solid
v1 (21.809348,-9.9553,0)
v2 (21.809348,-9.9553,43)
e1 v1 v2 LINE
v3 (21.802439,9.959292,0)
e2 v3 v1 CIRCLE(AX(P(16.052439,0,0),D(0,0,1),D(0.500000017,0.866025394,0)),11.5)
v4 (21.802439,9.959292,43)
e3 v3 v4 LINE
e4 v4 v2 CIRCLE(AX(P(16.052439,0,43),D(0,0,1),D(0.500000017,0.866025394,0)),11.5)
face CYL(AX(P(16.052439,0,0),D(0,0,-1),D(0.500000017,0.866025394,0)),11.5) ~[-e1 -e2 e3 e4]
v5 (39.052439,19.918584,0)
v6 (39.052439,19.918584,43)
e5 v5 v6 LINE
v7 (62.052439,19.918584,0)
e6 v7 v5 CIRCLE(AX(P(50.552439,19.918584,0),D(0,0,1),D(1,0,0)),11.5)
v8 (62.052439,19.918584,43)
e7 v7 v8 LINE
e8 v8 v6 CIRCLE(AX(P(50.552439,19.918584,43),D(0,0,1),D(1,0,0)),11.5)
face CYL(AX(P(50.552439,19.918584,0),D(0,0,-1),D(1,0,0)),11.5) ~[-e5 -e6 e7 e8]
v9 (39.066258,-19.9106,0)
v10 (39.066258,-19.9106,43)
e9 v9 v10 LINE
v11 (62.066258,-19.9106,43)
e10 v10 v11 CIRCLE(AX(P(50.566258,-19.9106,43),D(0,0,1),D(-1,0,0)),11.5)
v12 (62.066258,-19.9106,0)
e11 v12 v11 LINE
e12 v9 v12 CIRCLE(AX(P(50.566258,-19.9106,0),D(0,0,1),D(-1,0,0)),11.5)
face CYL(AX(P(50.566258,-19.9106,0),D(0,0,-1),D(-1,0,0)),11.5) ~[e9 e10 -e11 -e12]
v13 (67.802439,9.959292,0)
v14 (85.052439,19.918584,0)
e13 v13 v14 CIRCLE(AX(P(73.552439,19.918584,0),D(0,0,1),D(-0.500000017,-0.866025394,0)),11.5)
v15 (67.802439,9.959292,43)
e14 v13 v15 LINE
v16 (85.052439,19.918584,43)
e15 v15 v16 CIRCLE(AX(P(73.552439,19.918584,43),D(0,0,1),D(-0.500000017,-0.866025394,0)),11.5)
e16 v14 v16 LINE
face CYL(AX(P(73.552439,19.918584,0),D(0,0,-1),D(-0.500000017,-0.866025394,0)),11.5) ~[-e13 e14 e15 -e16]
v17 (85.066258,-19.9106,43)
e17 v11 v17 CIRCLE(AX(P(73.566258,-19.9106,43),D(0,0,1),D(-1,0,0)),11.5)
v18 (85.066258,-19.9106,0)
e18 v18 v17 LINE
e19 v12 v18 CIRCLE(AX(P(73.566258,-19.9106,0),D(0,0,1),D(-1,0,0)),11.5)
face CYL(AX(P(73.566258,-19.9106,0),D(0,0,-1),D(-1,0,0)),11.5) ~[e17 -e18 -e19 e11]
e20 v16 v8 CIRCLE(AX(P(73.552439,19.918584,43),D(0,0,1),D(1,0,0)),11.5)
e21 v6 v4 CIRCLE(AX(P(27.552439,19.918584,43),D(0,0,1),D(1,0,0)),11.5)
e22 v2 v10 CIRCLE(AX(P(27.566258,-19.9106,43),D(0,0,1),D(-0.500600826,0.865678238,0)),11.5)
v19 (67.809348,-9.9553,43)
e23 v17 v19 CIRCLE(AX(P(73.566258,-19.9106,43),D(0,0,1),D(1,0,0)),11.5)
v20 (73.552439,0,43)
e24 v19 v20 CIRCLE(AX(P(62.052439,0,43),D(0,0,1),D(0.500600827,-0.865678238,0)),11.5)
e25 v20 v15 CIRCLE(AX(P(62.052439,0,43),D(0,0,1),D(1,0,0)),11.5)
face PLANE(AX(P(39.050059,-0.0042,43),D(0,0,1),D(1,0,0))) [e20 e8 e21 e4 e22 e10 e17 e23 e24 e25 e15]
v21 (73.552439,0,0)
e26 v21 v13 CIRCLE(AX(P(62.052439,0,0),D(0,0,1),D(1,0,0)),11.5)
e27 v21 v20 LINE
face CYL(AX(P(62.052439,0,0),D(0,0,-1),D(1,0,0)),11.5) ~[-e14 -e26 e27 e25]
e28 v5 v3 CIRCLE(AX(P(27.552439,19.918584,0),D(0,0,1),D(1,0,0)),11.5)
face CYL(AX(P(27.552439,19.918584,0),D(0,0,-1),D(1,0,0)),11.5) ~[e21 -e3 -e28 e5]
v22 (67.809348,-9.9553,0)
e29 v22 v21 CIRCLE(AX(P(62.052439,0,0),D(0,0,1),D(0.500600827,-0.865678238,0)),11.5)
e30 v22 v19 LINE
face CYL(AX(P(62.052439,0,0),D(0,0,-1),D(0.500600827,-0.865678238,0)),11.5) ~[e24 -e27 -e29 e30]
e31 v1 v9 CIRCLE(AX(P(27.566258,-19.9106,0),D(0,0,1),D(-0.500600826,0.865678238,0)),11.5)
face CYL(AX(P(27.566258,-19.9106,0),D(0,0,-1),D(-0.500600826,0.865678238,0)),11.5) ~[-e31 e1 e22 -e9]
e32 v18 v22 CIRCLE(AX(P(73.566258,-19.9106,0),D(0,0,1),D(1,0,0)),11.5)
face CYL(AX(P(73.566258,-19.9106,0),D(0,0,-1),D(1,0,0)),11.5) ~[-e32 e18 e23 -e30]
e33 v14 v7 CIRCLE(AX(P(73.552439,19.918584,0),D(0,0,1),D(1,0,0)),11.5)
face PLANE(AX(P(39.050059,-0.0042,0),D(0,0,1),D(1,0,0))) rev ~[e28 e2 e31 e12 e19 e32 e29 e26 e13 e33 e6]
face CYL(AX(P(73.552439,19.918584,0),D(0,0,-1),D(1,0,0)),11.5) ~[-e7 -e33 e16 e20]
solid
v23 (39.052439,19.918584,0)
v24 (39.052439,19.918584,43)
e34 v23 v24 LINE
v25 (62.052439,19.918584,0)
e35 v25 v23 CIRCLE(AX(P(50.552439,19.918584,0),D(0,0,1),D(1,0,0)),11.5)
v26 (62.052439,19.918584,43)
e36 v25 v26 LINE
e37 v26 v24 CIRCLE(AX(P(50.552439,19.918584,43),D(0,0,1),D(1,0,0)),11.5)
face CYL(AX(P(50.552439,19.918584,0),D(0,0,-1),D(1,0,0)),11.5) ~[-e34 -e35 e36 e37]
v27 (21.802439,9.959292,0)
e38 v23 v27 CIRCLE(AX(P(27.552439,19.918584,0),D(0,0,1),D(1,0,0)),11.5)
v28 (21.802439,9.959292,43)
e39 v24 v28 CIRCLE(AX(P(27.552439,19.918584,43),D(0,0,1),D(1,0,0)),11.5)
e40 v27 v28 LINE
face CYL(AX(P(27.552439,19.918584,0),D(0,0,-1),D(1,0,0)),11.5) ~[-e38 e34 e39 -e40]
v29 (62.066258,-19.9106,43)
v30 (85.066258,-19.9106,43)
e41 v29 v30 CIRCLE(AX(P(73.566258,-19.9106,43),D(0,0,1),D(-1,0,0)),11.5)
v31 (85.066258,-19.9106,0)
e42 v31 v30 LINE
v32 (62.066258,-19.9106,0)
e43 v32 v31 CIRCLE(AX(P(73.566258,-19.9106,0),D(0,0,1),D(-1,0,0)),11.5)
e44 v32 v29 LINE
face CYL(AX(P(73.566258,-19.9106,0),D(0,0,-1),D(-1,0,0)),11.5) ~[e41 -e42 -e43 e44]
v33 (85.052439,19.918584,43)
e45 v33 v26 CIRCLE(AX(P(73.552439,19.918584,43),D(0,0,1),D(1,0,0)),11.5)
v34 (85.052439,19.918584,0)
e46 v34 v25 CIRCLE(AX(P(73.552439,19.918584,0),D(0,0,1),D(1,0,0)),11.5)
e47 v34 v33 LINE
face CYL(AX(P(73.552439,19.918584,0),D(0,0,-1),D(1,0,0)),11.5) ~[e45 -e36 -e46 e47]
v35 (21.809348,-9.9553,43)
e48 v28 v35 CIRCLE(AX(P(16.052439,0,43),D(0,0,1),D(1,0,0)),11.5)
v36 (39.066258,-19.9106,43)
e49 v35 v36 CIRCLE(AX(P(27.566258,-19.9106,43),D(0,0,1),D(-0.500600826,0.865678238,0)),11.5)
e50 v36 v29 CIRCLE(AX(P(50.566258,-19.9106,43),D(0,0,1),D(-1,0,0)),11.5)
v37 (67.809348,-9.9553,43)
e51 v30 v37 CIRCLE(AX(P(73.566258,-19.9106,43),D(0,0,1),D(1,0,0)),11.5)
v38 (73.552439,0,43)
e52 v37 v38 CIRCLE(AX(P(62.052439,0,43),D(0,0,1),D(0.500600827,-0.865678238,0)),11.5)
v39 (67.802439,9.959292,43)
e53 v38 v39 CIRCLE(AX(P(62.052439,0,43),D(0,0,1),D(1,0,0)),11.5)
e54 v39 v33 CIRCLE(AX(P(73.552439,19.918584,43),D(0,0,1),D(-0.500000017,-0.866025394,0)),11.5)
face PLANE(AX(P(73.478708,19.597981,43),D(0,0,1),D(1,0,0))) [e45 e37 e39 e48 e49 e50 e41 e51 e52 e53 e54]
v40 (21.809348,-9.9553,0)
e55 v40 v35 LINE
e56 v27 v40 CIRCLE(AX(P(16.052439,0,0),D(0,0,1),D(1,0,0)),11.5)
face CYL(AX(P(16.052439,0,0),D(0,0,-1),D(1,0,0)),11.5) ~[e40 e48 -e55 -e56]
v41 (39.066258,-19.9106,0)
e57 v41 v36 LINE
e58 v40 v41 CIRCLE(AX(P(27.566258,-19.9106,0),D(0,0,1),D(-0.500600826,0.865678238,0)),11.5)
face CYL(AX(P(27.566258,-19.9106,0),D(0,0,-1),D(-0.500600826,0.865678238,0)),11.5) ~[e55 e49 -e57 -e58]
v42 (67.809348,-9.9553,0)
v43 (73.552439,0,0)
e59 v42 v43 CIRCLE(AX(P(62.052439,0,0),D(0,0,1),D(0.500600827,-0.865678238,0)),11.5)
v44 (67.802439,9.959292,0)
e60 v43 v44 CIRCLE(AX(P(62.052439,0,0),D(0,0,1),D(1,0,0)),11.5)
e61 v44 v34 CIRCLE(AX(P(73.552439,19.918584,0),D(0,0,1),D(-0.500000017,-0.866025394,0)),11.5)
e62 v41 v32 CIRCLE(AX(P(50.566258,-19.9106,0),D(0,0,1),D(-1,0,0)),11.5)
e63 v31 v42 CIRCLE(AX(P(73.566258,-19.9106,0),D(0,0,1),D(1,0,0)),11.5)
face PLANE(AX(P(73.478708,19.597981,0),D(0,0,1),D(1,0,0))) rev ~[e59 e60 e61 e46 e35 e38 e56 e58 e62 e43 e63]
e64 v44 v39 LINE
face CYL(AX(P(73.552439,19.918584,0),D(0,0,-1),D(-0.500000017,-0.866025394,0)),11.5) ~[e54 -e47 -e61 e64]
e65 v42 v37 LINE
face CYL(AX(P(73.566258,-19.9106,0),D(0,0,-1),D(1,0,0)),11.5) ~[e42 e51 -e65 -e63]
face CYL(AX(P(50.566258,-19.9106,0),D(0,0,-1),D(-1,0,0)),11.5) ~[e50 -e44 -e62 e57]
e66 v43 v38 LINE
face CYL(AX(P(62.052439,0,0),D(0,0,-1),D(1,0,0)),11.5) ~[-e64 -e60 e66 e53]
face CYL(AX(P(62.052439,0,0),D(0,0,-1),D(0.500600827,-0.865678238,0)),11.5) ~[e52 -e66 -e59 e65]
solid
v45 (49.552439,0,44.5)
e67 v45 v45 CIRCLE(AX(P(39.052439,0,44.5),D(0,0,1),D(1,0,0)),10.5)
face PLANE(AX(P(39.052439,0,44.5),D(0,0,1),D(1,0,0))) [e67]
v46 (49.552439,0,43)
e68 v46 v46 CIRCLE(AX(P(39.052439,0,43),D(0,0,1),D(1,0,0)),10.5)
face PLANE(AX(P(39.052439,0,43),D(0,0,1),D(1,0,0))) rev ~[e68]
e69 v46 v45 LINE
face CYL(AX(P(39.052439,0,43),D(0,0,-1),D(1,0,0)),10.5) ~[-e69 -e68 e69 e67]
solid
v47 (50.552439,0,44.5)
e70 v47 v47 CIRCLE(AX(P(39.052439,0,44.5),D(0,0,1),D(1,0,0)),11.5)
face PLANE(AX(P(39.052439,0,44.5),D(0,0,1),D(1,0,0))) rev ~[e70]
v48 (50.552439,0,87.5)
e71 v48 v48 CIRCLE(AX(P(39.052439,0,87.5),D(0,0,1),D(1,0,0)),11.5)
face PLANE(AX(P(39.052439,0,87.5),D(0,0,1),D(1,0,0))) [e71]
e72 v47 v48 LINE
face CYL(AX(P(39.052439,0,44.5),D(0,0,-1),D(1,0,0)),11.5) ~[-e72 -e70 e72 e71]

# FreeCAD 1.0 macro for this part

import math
import FreeCAD as App
import Part
import Sketcher

V = App.Vector

doc = App.newDocument("Part")
body = doc.addObject("PartDesign::Body", "Body")

# Sketch on XY plane
sketch1 = doc.addObject("Sketcher::SketchObject", "Sketch")
body.addObject(sketch1)
sketch1.AttachmentSupport = (doc.XY_Plane, [""])
sketch1.MapMode = "FlatFace"
sketch1.addGeometry([
    Part.ArcOfCircle(Part.Circle(V(73.552439, 19.918584, 0), V(0, 0, 1), 11.5), math.radians(0), math.radians(180)),  # 0
    Part.ArcOfCircle(Part.Circle(V(50.552439, 19.918584, 0), V(0, 0, 1), 11.5), math.radians(0), math.radians(180)),  # 1
    Part.ArcOfCircle(Part.Circle(V(27.552439, 19.918584, 0), V(0, 0, 1), 11.5), math.radians(0), math.radians(239.999999)),  # 2
    Part.ArcOfCircle(Part.Circle(V(16.052439, 0, 0), V(0, 0, 1), 11.5), math.radians(60.000001), math.radians(300.039757)),  # 3
    Part.ArcOfCircle(Part.Circle(V(27.566258, -19.9106, 0), V(0, 0, 1), 11.5), math.radians(120.039758), math.radians(360)),  # 4
    Part.ArcOfCircle(Part.Circle(V(50.566258, -19.9106, 0), V(0, 0, 1), 11.5), math.radians(180), math.radians(360)),  # 5
    Part.ArcOfCircle(Part.Circle(V(73.566258, -19.9106, 0), V(0, 0, 1), 11.5), math.radians(180), math.radians(360)),  # 6
    Part.ArcOfCircle(Part.Circle(V(73.566258, -19.9106, 0), V(0, 0, 1), 11.5), math.radians(0), math.radians(120.039757)),  # 7
    Part.ArcOfCircle(Part.Circle(V(62.052439, 0, 0), V(0, 0, 1), 11.5), math.radians(-59.960242), math.radians(0)),  # 8
    Part.ArcOfCircle(Part.Circle(V(62.052439, 0, 0), V(0, 0, 1), 11.5), math.radians(0), math.radians(60.000001)),  # 9
    Part.ArcOfCircle(Part.Circle(V(73.552439, 19.918584, 0), V(0, 0, 1), 11.5), math.radians(-120.000001), math.radians(0)),  # 10
], False)
sketch1.addConstraint([
    Sketcher.Constraint("Tangent", 0, 2, 1, 1),
    Sketcher.Constraint("Tangent", 1, 2, 2, 1),
    Sketcher.Constraint("Tangent", 2, 2, 3, 1),
    Sketcher.Constraint("Tangent", 3, 2, 4, 1),
    Sketcher.Constraint("Tangent", 4, 2, 5, 1),
    Sketcher.Constraint("Tangent", 5, 2, 6, 1),
    Sketcher.Constraint("Tangent", 6, 2, 7, 1),
    Sketcher.Constraint("Tangent", 7, 2, 8, 1),
    Sketcher.Constraint("Tangent", 8, 2, 9, 1),
    Sketcher.Constraint("Tangent", 9, 2, 10, 1),
    Sketcher.Constraint("Tangent", 10, 2, 0, 1),
    Sketcher.Constraint("Equal", 0, 1),
    Sketcher.Constraint("Equal", 1, 2),
    Sketcher.Constraint("Equal", 2, 3),
    Sketcher.Constraint("Equal", 3, 4),
    Sketcher.Constraint("Equal", 4, 5),
    Sketcher.Constraint("Equal", 5, 6),
    Sketcher.Constraint("Equal", 6, 7),
    Sketcher.Constraint("Equal", 7, 8),
    Sketcher.Constraint("Equal", 8, 9),
    Sketcher.Constraint("Equal", 9, 10),
    Sketcher.Constraint("PointOnObject", 3, 3, -1),
    Sketcher.Constraint("PointOnObject", 8, 3, -1),
    Sketcher.Constraint("PointOnObject", 8, 2, -1),
    Sketcher.Constraint("Horizontal", 0, 3, 1, 3),
    Sketcher.Constraint("Horizontal", 1, 3, 2, 3),
    Sketcher.Constraint("Horizontal", 4, 3, 5, 3),
    Sketcher.Constraint("Horizontal", 5, 2, 6, 2),
    Sketcher.Constraint("Horizontal", 1, 2, 10, 2),
    Sketcher.Constraint("Vertical", 9, 3, 0, 2),
    Sketcher.Constraint("Radius", 0, 11.5),
    Sketcher.Constraint("DistanceY", 4, 3, -1, 1, 19.9106),
    Sketcher.Constraint("DistanceX", -1, 1, 0, 3, 73.552439),
])
pad1 = doc.addObject("PartDesign::Pad", "Pad")
body.addObject(pad1)
pad1.Profile = sketch1
pad1.Length = 43
body2 = doc.addObject("PartDesign::Body", "Body001")

# Sketch on XY plane
sketch2 = doc.addObject("Sketcher::SketchObject", "Sketch001")
body2.addObject(sketch2)
sketch2.AttachmentSupport = (doc.getObject("XY_Plane001"), [""])
sketch2.MapMode = "FlatFace"
sketch2.addGeometry([
    Part.ArcOfCircle(Part.Circle(V(27.566258, -19.9106, 0), V(0, 0, 1), 11.5), math.radians(120.039758), math.radians(360)),  # 0
    Part.ArcOfCircle(Part.Circle(V(50.566258, -19.9106, 0), V(0, 0, 1), 11.5), math.radians(180), math.radians(360)),  # 1
    Part.ArcOfCircle(Part.Circle(V(73.566258, -19.9106, 0), V(0, 0, 1), 11.5), math.radians(180), math.radians(360)),  # 2
    Part.ArcOfCircle(Part.Circle(V(73.566258, -19.9106, 0), V(0, 0, 1), 11.5), math.radians(0), math.radians(120.039757)),  # 3
    Part.ArcOfCircle(Part.Circle(V(62.052439, 0, 0), V(0, 0, 1), 11.5), math.radians(-59.960242), math.radians(0)),  # 4
    Part.ArcOfCircle(Part.Circle(V(62.052439, 0, 0), V(0, 0, 1), 11.5), math.radians(0), math.radians(60.000001)),  # 5
    Part.ArcOfCircle(Part.Circle(V(73.552439, 19.918584, 0), V(0, 0, 1), 11.5), math.radians(-120.000001), math.radians(0)),  # 6
    Part.ArcOfCircle(Part.Circle(V(73.552439, 19.918584, 0), V(0, 0, 1), 11.5), math.radians(0), math.radians(180)),  # 7
    Part.ArcOfCircle(Part.Circle(V(50.552439, 19.918584, 0), V(0, 0, 1), 11.5), math.radians(0), math.radians(180)),  # 8
    Part.ArcOfCircle(Part.Circle(V(27.552439, 19.918584, 0), V(0, 0, 1), 11.5), math.radians(0), math.radians(240.000001)),  # 9
    Part.ArcOfCircle(Part.Circle(V(16.052439, 0, 0), V(0, 0, 1), 11.5), math.radians(59.999999), math.radians(300.039757)),  # 10
], False)
sketch2.addConstraint([
    Sketcher.Constraint("Tangent", 0, 2, 1, 1),
    Sketcher.Constraint("Tangent", 1, 2, 2, 1),
    Sketcher.Constraint("Tangent", 2, 2, 3, 1),
    Sketcher.Constraint("Tangent", 3, 2, 4, 1),
    Sketcher.Constraint("Tangent", 4, 2, 5, 1),
    Sketcher.Constraint("Tangent", 5, 2, 6, 1),
    Sketcher.Constraint("Tangent", 6, 2, 7, 1),
    Sketcher.Constraint("Tangent", 7, 2, 8, 1),
    Sketcher.Constraint("Tangent", 8, 2, 9, 1),
    Sketcher.Constraint("Tangent", 9, 2, 10, 1),
    Sketcher.Constraint("Tangent", 10, 2, 0, 1),
    Sketcher.Constraint("Equal", 0, 1),
    Sketcher.Constraint("Equal", 1, 2),
    Sketcher.Constraint("Equal", 2, 3),
    Sketcher.Constraint("Equal", 3, 4),
    Sketcher.Constraint("Equal", 4, 5),
    Sketcher.Constraint("Equal", 5, 6),
    Sketcher.Constraint("Equal", 6, 7),
    Sketcher.Constraint("Equal", 7, 8),
    Sketcher.Constraint("Equal", 8, 9),
    Sketcher.Constraint("Equal", 9, 10),
    Sketcher.Constraint("PointOnObject", 4, 3, -1),
    Sketcher.Constraint("PointOnObject", 10, 3, -1),
    Sketcher.Constraint("PointOnObject", 4, 2, -1),
    Sketcher.Constraint("Horizontal", 0, 3, 1, 3),
    Sketcher.Constraint("Horizontal", 1, 3, 2, 3),
    Sketcher.Constraint("Horizontal", 7, 3, 8, 3),
    Sketcher.Constraint("Horizontal", 1, 2, 2, 2),
    Sketcher.Constraint("Horizontal", 9, 3, 6, 2),
    Sketcher.Constraint("Vertical", 7, 3, 4, 2),
    Sketcher.Constraint("Radius", 0, 11.5),
    Sketcher.Constraint("DistanceY", 0, 3, -1, 1, 19.9106),
    Sketcher.Constraint("DistanceX", -1, 1, 4, 3, 62.052439),
])
pad2 = doc.addObject("PartDesign::Pad", "Pad001")
body2.addObject(pad2)
pad2.Profile = sketch2
pad2.Length = 43
body3 = doc.addObject("PartDesign::Body", "Body002")

# Sketch on XY plane
sketch3 = doc.addObject("Sketcher::SketchObject", "Sketch002")
body3.addObject(sketch3)
sketch3.AttachmentSupport = (doc.getObject("XY_Plane002"), [""])
sketch3.MapMode = "FlatFace"
sketch3.AttachmentOffset = App.Placement(V(0, 0, 43), App.Rotation())
sketch3.addGeometry(Part.Circle(V(39.052439, 0, 0), V(0, 0, 1), 10.5), False)
sketch3.addConstraint([
    Sketcher.Constraint("PointOnObject", 0, 3, -1),
    Sketcher.Constraint("Diameter", 0, 21.0),
    Sketcher.Constraint("DistanceX", -1, 1, 0, 3, 39.052439),
])
pad3 = doc.addObject("PartDesign::Pad", "Pad002")
body3.addObject(pad3)
pad3.Profile = sketch3
pad3.Length = 1.5
body4 = doc.addObject("PartDesign::Body", "Body003")

# Sketch on XY plane
sketch4 = doc.addObject("Sketcher::SketchObject", "Sketch003")
body4.addObject(sketch4)
sketch4.AttachmentSupport = (doc.getObject("XY_Plane003"), [""])
sketch4.MapMode = "FlatFace"
sketch4.AttachmentOffset = App.Placement(V(0, 0, 44.5), App.Rotation())
sketch4.addGeometry(Part.Circle(V(39.052439, 0, 0), V(0, 0, 1), 11.5), False)
sketch4.addConstraint([
    Sketcher.Constraint("PointOnObject", 0, 3, -1),
    Sketcher.Constraint("Diameter", 0, 23.0),
    Sketcher.Constraint("DistanceX", -1, 1, 0, 3, 39.052439),
])
pad4 = doc.addObject("PartDesign::Pad", "Pad003")
body4.addObject(pad4)
pad4.Profile = sketch4
pad4.Length = 43

doc.recompute()
